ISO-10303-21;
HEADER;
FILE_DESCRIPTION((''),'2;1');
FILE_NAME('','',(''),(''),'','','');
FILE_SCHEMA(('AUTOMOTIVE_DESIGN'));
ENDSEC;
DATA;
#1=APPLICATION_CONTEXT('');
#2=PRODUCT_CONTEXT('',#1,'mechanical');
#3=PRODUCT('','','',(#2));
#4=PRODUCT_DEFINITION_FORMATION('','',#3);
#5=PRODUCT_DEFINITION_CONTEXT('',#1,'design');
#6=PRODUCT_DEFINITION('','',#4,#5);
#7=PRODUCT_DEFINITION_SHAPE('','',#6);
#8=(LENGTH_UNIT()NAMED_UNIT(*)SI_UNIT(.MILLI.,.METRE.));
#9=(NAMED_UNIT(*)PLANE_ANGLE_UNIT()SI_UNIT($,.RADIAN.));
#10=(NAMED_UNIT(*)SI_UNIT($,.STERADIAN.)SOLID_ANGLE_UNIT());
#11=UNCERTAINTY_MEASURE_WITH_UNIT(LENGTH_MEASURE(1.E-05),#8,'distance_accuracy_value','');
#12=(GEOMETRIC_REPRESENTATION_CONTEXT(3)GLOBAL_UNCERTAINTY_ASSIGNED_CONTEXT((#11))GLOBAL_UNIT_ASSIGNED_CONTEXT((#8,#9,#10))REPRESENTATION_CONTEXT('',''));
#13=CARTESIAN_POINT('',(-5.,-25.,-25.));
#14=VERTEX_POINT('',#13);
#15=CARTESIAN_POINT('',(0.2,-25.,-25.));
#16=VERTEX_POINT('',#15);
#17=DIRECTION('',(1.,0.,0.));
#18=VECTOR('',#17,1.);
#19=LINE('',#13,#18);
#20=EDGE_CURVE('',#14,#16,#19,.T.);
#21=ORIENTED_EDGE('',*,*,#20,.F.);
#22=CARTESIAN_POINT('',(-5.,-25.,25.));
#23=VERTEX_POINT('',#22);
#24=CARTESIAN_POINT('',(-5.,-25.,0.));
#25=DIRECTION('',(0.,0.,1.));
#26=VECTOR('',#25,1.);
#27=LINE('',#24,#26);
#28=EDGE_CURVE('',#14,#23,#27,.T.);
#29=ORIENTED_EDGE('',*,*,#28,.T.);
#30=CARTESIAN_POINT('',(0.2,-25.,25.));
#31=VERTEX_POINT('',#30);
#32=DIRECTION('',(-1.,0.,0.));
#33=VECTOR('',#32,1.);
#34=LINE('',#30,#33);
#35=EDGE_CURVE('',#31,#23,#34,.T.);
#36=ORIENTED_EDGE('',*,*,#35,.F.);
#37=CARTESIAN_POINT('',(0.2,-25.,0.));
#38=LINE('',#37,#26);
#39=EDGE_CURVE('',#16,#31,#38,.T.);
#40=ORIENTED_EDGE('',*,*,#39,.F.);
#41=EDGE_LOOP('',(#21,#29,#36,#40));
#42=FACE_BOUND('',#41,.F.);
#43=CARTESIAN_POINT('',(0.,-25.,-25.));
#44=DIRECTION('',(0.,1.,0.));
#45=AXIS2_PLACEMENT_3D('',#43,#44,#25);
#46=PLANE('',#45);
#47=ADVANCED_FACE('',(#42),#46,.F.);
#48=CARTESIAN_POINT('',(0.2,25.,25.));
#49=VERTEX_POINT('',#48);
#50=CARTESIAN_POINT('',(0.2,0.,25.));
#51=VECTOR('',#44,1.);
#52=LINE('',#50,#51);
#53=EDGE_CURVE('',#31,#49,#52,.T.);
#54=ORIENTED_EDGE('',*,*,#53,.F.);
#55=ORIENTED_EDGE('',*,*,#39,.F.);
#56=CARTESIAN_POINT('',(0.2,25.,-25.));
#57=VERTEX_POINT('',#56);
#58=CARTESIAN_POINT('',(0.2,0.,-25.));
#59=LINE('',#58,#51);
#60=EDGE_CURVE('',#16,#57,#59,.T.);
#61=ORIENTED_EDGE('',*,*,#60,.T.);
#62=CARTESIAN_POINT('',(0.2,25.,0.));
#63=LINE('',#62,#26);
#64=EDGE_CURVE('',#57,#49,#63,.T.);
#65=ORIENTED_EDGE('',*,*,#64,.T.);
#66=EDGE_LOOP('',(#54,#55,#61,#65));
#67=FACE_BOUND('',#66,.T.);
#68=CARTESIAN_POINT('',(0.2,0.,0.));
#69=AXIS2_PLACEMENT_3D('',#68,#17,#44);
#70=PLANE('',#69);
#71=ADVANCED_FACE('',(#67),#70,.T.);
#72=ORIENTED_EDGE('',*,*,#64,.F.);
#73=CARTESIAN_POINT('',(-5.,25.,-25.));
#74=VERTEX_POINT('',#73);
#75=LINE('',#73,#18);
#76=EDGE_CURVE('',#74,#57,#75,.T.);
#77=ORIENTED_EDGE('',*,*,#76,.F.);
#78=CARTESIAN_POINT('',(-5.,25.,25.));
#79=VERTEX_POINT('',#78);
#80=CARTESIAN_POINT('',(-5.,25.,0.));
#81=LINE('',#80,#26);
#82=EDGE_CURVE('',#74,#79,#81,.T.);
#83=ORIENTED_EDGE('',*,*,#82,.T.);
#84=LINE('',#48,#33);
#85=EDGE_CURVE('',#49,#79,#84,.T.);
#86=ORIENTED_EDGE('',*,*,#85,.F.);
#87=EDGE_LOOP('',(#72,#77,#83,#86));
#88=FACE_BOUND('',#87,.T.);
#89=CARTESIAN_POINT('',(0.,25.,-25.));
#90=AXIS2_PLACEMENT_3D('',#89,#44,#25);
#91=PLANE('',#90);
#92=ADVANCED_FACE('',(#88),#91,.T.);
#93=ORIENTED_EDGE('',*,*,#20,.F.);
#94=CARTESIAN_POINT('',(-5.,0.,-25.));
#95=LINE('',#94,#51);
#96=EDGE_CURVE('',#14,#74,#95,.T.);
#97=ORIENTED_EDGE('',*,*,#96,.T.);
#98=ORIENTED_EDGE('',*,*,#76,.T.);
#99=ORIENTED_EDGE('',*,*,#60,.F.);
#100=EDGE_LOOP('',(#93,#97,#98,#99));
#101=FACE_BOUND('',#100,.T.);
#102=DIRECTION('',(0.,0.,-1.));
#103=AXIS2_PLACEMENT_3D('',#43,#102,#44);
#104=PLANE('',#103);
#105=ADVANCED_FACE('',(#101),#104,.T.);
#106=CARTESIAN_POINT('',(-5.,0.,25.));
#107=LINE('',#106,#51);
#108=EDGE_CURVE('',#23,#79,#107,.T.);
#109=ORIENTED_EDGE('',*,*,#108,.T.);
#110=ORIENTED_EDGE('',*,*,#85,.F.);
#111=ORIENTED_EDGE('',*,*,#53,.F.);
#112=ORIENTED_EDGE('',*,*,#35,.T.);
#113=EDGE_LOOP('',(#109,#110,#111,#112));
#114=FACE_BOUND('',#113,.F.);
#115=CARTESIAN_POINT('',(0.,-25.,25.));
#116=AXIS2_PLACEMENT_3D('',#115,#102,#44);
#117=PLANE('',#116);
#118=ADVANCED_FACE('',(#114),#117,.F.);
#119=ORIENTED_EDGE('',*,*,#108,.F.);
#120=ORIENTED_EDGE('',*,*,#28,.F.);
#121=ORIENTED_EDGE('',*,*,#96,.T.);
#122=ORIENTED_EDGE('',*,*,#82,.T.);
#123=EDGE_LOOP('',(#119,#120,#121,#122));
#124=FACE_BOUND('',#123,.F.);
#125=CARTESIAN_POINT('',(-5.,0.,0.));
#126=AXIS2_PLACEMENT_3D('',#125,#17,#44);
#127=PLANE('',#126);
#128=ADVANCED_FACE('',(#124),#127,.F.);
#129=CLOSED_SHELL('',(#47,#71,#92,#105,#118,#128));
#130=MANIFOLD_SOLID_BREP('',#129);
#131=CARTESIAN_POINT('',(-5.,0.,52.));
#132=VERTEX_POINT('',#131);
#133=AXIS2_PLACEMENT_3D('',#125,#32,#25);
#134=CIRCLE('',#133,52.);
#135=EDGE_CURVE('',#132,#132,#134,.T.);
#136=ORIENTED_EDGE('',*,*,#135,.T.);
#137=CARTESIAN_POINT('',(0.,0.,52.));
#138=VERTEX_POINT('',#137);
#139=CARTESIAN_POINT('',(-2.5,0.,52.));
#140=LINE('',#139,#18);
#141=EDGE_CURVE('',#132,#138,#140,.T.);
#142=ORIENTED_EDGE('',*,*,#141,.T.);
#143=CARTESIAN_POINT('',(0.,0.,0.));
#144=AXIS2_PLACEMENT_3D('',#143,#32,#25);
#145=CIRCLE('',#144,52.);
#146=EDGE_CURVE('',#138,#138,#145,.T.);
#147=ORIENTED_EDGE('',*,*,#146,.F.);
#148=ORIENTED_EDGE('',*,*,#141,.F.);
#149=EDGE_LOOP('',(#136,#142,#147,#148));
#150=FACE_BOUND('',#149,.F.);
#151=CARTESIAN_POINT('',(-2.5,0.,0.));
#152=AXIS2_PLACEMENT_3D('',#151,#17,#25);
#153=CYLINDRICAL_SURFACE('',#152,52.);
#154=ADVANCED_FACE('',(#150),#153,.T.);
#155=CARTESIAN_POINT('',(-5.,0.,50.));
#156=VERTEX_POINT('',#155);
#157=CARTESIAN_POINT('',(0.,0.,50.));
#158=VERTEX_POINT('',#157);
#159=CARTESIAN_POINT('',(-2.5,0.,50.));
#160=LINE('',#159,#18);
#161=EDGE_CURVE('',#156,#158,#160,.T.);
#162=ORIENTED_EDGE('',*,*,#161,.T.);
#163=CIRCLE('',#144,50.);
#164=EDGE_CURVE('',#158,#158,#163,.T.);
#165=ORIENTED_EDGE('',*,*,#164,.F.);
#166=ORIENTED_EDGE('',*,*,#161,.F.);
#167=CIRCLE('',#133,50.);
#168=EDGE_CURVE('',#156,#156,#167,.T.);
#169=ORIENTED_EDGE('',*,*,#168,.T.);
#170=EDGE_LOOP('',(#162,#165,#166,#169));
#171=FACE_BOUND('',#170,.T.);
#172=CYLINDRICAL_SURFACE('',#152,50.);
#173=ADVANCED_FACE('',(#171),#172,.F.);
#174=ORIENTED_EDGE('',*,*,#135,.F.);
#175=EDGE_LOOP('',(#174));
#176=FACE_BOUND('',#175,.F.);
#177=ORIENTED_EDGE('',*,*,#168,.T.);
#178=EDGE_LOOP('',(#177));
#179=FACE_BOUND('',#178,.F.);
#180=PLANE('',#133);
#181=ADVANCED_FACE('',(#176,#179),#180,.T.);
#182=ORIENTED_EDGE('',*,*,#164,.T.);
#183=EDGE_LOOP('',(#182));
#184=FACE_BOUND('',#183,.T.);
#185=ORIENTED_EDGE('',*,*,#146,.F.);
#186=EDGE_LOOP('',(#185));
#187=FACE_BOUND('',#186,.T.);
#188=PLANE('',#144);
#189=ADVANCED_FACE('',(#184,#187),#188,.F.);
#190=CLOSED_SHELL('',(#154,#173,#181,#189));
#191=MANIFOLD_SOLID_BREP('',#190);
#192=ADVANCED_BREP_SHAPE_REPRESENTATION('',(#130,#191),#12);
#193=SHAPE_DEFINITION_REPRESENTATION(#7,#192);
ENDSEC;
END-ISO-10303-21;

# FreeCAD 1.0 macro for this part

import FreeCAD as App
import Part
import Sketcher

V = App.Vector
Q = App.Units.Quantity


def add_polygon(sketch, points):
    """Adds a closed chain of lines whose ends are joined by coincident constraints."""
    first, n = sketch.GeometryCount, len(points)
    for a, b in zip(points, points[1:] + points[:1]):
        sketch.addGeometry(Part.LineSegment(App.Vector(*a, 0), App.Vector(*b, 0)), False)
    for i in range(n):
        sketch.addConstraint(Sketcher.Constraint("Coincident", first + i, 2, first + (i + 1) % n, 1))

doc = App.newDocument("Part")
body = doc.addObject("PartDesign::Body", "Body")

# Sketch on XZ plane
sketch1 = body.newObject("Sketcher::SketchObject", "Sketch")
sketch1.AttachmentSupport = (doc.getObject("XZ_Plane"), [""])
sketch1.MapMode = "FlatFace"
add_polygon(sketch1, [(-5, 52), (-5, 50), (0, 50), (0, 52)])  # lines 0-3
sketch1.addConstraint([
    Sketcher.Constraint("Vertical", 0),
    Sketcher.Constraint("Horizontal", 1),
    Sketcher.Constraint("Vertical", 2),
    Sketcher.Constraint("Horizontal", 3),
    Sketcher.Constraint("PointOnObject", 1, 2, -2),
    Sketcher.Constraint("DistanceX", 1, 1, 1, 2, Q("5 mm")),
    Sketcher.Constraint("DistanceY", 0, 2, 0, 1, Q("2 mm")),
    Sketcher.Constraint("DistanceY", -1, 1, 0, 2, Q("50 mm")),
])
revolution = body.newObject("PartDesign::Revolution", "Revolution")
revolution.Profile = sketch1
revolution.ReferenceAxis = (sketch1, ["H_Axis"])
revolution.Angle = 360
body2 = doc.addObject("PartDesign::Body", "Body001")

# Sketch on YZ plane
sketch2 = body2.newObject("Sketcher::SketchObject", "Sketch001")
sketch2.AttachmentSupport = (doc.getObject("YZ_Plane001"), [""])
sketch2.MapMode = "FlatFace"
add_polygon(sketch2, [(-25, 25), (-25, -25), (25, -25), (25, 25)])  # lines 0-3
sketch2.addConstraint([
    Sketcher.Constraint("Vertical", 0),
    Sketcher.Constraint("Horizontal", 1),
    Sketcher.Constraint("Vertical", 2),
    Sketcher.Constraint("Horizontal", 3),
    Sketcher.Constraint("Symmetric", 0, 2, 2, 2, -1, 1),
    Sketcher.Constraint("Equal", 3, 0),
    Sketcher.Constraint("DistanceX", 1, 1, 1, 2, Q("50.000001 mm")),
])
pad1 = body2.newObject("PartDesign::Pad", "Pad")
pad1.Profile = sketch2
pad1.Type = "TwoLengths"
pad1.Length = 0.2
pad1.Length2 = 5

doc.recompute()
